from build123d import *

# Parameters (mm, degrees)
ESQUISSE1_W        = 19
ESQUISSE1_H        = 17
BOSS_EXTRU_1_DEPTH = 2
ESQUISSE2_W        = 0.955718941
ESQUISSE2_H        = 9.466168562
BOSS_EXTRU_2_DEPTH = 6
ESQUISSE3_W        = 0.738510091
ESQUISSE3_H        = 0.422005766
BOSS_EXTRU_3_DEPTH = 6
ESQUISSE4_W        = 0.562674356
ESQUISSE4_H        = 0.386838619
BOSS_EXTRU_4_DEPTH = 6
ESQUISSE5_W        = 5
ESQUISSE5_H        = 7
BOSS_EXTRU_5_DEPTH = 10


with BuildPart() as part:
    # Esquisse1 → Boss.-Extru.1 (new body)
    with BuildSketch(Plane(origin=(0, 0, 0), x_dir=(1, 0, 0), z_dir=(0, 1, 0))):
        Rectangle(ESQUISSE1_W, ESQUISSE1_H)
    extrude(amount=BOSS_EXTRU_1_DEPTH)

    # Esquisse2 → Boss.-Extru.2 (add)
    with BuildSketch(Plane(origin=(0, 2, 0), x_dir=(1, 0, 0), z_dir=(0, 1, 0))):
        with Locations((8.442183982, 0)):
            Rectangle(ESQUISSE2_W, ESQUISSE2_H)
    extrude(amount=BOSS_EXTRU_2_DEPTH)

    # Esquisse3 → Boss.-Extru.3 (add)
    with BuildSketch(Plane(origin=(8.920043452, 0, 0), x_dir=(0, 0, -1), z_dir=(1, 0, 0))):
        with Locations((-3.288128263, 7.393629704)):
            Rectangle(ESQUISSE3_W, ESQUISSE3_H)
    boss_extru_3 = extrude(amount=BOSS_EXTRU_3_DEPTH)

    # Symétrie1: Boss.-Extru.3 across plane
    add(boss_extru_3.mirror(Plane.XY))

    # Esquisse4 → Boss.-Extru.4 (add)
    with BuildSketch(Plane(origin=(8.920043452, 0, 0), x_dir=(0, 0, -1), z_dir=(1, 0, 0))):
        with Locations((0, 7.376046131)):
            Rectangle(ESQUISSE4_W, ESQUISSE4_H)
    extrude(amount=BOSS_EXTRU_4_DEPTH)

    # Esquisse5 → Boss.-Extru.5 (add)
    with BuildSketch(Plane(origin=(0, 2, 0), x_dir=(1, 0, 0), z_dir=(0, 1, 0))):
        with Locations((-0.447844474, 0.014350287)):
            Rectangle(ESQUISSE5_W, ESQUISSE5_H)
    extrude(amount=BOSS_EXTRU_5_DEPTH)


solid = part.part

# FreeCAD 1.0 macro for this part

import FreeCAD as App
import Part
import Sketcher

V = App.Vector

doc = App.newDocument("Part")
params = doc.addObject("Spreadsheet::Sheet", "Params")
for row, (alias, value) in enumerate([
    ("sketch1_width", "19 mm"),
    ("sketch1_height", "17 mm"),
    ("pad1_length", "2 mm"),
    ("pad2_length", "6 mm"),
    ("pad3_length", "6 mm"),
    ("pad4_length", "6 mm"),
    ("sketch5_width", "5 mm"),
    ("sketch5_height", "7 mm"),
    ("pad5_length", "10 mm"),
], start=1):
    params.set(f"A{row}", alias)
    params.set(f"B{row}", "=" + value)
    params.setAlias(f"B{row}", alias)

body = doc.addObject("PartDesign::Body", "Body")

sketch1 = body.newObject("Sketcher::SketchObject", "Sketch")
sketch1.AttachmentSupport = (doc.getObject("XZ_Plane"), [""])
sketch1.MapMode = "FlatFace"
sketch1.addGeometry(Part.LineSegment(V(-10, -8, 0), V(-10, 8, 0)), False)
sketch1.addGeometry(Part.LineSegment(V(-10, 8, 0), V(10, 8, 0)), False)
sketch1.addGeometry(Part.LineSegment(V(10, 8, 0), V(10, -8, 0)), False)
sketch1.addGeometry(Part.LineSegment(V(10, -8, 0), V(-10, -8, 0)), False)
sketch1.addConstraint(Sketcher.Constraint("Coincident", 0, 2, 1, 1))
sketch1.addConstraint(Sketcher.Constraint("Coincident", 1, 2, 2, 1))
sketch1.addConstraint(Sketcher.Constraint("Coincident", 2, 2, 3, 1))
sketch1.addConstraint(Sketcher.Constraint("Coincident", 3, 2, 0, 1))
sketch1.addConstraint(Sketcher.Constraint("Vertical", 0))
sketch1.addConstraint(Sketcher.Constraint("Horizontal", 1))
sketch1.addConstraint(Sketcher.Constraint("Vertical", 2))
sketch1.addConstraint(Sketcher.Constraint("Horizontal", 3))
sketch1.addConstraint(Sketcher.Constraint("Symmetric", 0, 2, 2, 2, -1, 1))
sketch1.addConstraint(Sketcher.Constraint("DistanceX", 1, 1, 1, 2, 19.0))
sketch1.addConstraint(Sketcher.Constraint("DistanceY", 0, 1, 0, 2, 17.0))
sketch1.setExpression("Constraints[9]", "Params.sketch1_width")
sketch1.setExpression("Constraints[10]", "Params.sketch1_height")
pad1 = body.newObject("PartDesign::Pad", "Pad")
pad1.Profile = sketch1
pad1.setExpression("Length", "Params.pad1_length")
pad1.Reversed = True

sketch2 = body.newObject("Sketcher::SketchObject", "Sketch001")
sketch2.AttachmentSupport = (doc.getObject("XZ_Plane"), [""])
sketch2.MapMode = "FlatFace"
sketch2.AttachmentOffset = App.Placement(V(0, 0, -2), App.Rotation())
sketch2.addGeometry(Part.LineSegment(V(8, -4.7, 0), V(8, 4.7, 0)), False)
sketch2.addGeometry(Part.LineSegment(V(8, 4.7, 0), V(8.9, 4.7, 0)), False)
sketch2.addGeometry(Part.LineSegment(V(8.9, 4.7, 0), V(8.9, -4.7, 0)), False)
sketch2.addGeometry(Part.LineSegment(V(8.9, -4.7, 0), V(8, -4.7, 0)), False)
sketch2.addConstraint(Sketcher.Constraint("Coincident", 0, 2, 1, 1))
sketch2.addConstraint(Sketcher.Constraint("Coincident", 1, 2, 2, 1))
sketch2.addConstraint(Sketcher.Constraint("Coincident", 2, 2, 3, 1))
sketch2.addConstraint(Sketcher.Constraint("Coincident", 3, 2, 0, 1))
sketch2.addConstraint(Sketcher.Constraint("Vertical", 0))
sketch2.addConstraint(Sketcher.Constraint("Horizontal", 1))
sketch2.addConstraint(Sketcher.Constraint("Vertical", 2))
sketch2.addConstraint(Sketcher.Constraint("Horizontal", 3))
sketch2.addConstraint(Sketcher.Constraint("DistanceX", 1, 1, 1, 2, 0.955719))
sketch2.addConstraint(Sketcher.Constraint("DistanceY", 0, 1, 0, 2, 9.466169))
sketch2.addConstraint(Sketcher.Constraint("DistanceX", -1, 1, 0, 2, 7.964325))
sketch2.addConstraint(Sketcher.Constraint("DistanceY", -1, 1, 0, 2, 4.733084))
pad2 = body.newObject("PartDesign::Pad", "Pad001")
pad2.Profile = sketch2
pad2.setExpression("Length", "Params.pad2_length")
pad2.Reversed = True

sketch3 = body.newObject("Sketcher::SketchObject", "Sketch002")
sketch3.AttachmentSupport = (doc.getObject("YZ_Plane"), [""])
sketch3.MapMode = "FlatFace"
sketch3.AttachmentOffset = App.Placement(V(0, 0, 8.920043), App.Rotation())
sketch3.addGeometry(Part.LineSegment(V(7.6, 3.66, 0), V(7.18, 3.66, 0)), False)
sketch3.addGeometry(Part.LineSegment(V(7.18, 3.66, 0), V(7.18, 2.92, 0)), False)
sketch3.addGeometry(Part.LineSegment(V(7.18, 2.92, 0), V(7.6, 2.92, 0)), False)
sketch3.addGeometry(Part.LineSegment(V(7.6, 2.92, 0), V(7.6, 3.66, 0)), False)
sketch3.addConstraint(Sketcher.Constraint("Coincident", 0, 2, 1, 1))
sketch3.addConstraint(Sketcher.Constraint("Coincident", 1, 2, 2, 1))
sketch3.addConstraint(Sketcher.Constraint("Coincident", 2, 2, 3, 1))
sketch3.addConstraint(Sketcher.Constraint("Coincident", 3, 2, 0, 1))
sketch3.addConstraint(Sketcher.Constraint("Horizontal", 0))
sketch3.addConstraint(Sketcher.Constraint("Vertical", 1))
sketch3.addConstraint(Sketcher.Constraint("Horizontal", 2))
sketch3.addConstraint(Sketcher.Constraint("Vertical", 3))
sketch3.addConstraint(Sketcher.Constraint("DistanceY", 1, 2, 1, 1, 0.73851))
sketch3.addConstraint(Sketcher.Constraint("DistanceX", 0, 2, 0, 1, 0.422006))
sketch3.addConstraint(Sketcher.Constraint("DistanceX", -1, 1, 0, 2, 7.182627))
sketch3.addConstraint(Sketcher.Constraint("DistanceY", -1, 1, 0, 2, 3.657383))
pad3 = body.newObject("PartDesign::Pad", "Pad002")
pad3.Profile = sketch3
pad3.setExpression("Length", "Params.pad3_length")
doc.recompute()

mirrored = body.newObject("PartDesign::Mirrored", "Mirrored")
mirrored.Originals = [pad3]
mirrored.MirrorPlane = (doc.getObject("XY_Plane"), [""])
body.Tip = mirrored

sketch4 = body.newObject("Sketcher::SketchObject", "Sketch003")
sketch4.AttachmentSupport = (doc.getObject("YZ_Plane"), [""])
sketch4.MapMode = "FlatFace"
sketch4.AttachmentOffset = App.Placement(V(0, 0, 8.920043), App.Rotation())
sketch4.addGeometry(Part.LineSegment(V(7.57, 0.28, 0), V(7.18, 0.28, 0)), False)
sketch4.addGeometry(Part.LineSegment(V(7.18, 0.28, 0), V(7.18, -0.28, 0)), False)
sketch4.addGeometry(Part.LineSegment(V(7.18, -0.28, 0), V(7.57, -0.28, 0)), False)
sketch4.addGeometry(Part.LineSegment(V(7.57, -0.28, 0), V(7.57, 0.28, 0)), False)
sketch4.addConstraint(Sketcher.Constraint("Coincident", 0, 2, 1, 1))
sketch4.addConstraint(Sketcher.Constraint("Coincident", 1, 2, 2, 1))
sketch4.addConstraint(Sketcher.Constraint("Coincident", 2, 2, 3, 1))
sketch4.addConstraint(Sketcher.Constraint("Coincident", 3, 2, 0, 1))
sketch4.addConstraint(Sketcher.Constraint("Horizontal", 0))
sketch4.addConstraint(Sketcher.Constraint("Vertical", 1))
sketch4.addConstraint(Sketcher.Constraint("Horizontal", 2))
sketch4.addConstraint(Sketcher.Constraint("Vertical", 3))
sketch4.addConstraint(Sketcher.Constraint("DistanceX", 0, 2, 0, 1, 0.386839))
sketch4.addConstraint(Sketcher.Constraint("DistanceY", 1, 2, 1, 1, 0.562674))
sketch4.addConstraint(Sketcher.Constraint("DistanceX", -1, 1, 0, 2, 7.182627))
sketch4.addConstraint(Sketcher.Constraint("DistanceY", -1, 1, 0, 2, 0.281337))
pad4 = body.newObject("PartDesign::Pad", "Pad003")
pad4.Profile = sketch4
pad4.setExpression("Length", "Params.pad4_length")

sketch5 = body.newObject("Sketcher::SketchObject", "Sketch004")
sketch5.AttachmentSupport = (doc.getObject("XZ_Plane"), [""])
sketch5.MapMode = "FlatFace"
sketch5.AttachmentOffset = App.Placement(V(0, 0, -2), App.Rotation())
sketch5.addGeometry(Part.LineSegment(V(-3, -4, 0), V(-3, 3, 0)), False)
sketch5.addGeometry(Part.LineSegment(V(-3, 3, 0), V(2, 3, 0)), False)
sketch5.addGeometry(Part.LineSegment(V(2, 3, 0), V(2, -4, 0)), False)
sketch5.addGeometry(Part.LineSegment(V(2, -4, 0), V(-3, -4, 0)), False)
sketch5.addConstraint(Sketcher.Constraint("Coincident", 0, 2, 1, 1))
sketch5.addConstraint(Sketcher.Constraint("Coincident", 1, 2, 2, 1))
sketch5.addConstraint(Sketcher.Constraint("Coincident", 2, 2, 3, 1))
sketch5.addConstraint(Sketcher.Constraint("Coincident", 3, 2, 0, 1))
sketch5.addConstraint(Sketcher.Constraint("Vertical", 0))
sketch5.addConstraint(Sketcher.Constraint("Horizontal", 1))
sketch5.addConstraint(Sketcher.Constraint("Vertical", 2))
sketch5.addConstraint(Sketcher.Constraint("Horizontal", 3))
sketch5.addConstraint(Sketcher.Constraint("DistanceX", 1, 1, 1, 2, 5.0))
sketch5.addConstraint(Sketcher.Constraint("DistanceY", 0, 1, 0, 2, 7.0))
sketch5.addConstraint(Sketcher.Constraint("DistanceY", -1, 1, 0, 2, 3.48565))
sketch5.addConstraint(Sketcher.Constraint("DistanceX", 0, 2, -1, 1, 2.947844))
sketch5.setExpression("Constraints[8]", "Params.sketch5_width")
sketch5.setExpression("Constraints[9]", "Params.sketch5_height")
pad5 = body.newObject("PartDesign::Pad", "Pad004")
pad5.Profile = sketch5
pad5.setExpression("Length", "Params.pad5_length")
pad5.Reversed = True

doc.recompute()
